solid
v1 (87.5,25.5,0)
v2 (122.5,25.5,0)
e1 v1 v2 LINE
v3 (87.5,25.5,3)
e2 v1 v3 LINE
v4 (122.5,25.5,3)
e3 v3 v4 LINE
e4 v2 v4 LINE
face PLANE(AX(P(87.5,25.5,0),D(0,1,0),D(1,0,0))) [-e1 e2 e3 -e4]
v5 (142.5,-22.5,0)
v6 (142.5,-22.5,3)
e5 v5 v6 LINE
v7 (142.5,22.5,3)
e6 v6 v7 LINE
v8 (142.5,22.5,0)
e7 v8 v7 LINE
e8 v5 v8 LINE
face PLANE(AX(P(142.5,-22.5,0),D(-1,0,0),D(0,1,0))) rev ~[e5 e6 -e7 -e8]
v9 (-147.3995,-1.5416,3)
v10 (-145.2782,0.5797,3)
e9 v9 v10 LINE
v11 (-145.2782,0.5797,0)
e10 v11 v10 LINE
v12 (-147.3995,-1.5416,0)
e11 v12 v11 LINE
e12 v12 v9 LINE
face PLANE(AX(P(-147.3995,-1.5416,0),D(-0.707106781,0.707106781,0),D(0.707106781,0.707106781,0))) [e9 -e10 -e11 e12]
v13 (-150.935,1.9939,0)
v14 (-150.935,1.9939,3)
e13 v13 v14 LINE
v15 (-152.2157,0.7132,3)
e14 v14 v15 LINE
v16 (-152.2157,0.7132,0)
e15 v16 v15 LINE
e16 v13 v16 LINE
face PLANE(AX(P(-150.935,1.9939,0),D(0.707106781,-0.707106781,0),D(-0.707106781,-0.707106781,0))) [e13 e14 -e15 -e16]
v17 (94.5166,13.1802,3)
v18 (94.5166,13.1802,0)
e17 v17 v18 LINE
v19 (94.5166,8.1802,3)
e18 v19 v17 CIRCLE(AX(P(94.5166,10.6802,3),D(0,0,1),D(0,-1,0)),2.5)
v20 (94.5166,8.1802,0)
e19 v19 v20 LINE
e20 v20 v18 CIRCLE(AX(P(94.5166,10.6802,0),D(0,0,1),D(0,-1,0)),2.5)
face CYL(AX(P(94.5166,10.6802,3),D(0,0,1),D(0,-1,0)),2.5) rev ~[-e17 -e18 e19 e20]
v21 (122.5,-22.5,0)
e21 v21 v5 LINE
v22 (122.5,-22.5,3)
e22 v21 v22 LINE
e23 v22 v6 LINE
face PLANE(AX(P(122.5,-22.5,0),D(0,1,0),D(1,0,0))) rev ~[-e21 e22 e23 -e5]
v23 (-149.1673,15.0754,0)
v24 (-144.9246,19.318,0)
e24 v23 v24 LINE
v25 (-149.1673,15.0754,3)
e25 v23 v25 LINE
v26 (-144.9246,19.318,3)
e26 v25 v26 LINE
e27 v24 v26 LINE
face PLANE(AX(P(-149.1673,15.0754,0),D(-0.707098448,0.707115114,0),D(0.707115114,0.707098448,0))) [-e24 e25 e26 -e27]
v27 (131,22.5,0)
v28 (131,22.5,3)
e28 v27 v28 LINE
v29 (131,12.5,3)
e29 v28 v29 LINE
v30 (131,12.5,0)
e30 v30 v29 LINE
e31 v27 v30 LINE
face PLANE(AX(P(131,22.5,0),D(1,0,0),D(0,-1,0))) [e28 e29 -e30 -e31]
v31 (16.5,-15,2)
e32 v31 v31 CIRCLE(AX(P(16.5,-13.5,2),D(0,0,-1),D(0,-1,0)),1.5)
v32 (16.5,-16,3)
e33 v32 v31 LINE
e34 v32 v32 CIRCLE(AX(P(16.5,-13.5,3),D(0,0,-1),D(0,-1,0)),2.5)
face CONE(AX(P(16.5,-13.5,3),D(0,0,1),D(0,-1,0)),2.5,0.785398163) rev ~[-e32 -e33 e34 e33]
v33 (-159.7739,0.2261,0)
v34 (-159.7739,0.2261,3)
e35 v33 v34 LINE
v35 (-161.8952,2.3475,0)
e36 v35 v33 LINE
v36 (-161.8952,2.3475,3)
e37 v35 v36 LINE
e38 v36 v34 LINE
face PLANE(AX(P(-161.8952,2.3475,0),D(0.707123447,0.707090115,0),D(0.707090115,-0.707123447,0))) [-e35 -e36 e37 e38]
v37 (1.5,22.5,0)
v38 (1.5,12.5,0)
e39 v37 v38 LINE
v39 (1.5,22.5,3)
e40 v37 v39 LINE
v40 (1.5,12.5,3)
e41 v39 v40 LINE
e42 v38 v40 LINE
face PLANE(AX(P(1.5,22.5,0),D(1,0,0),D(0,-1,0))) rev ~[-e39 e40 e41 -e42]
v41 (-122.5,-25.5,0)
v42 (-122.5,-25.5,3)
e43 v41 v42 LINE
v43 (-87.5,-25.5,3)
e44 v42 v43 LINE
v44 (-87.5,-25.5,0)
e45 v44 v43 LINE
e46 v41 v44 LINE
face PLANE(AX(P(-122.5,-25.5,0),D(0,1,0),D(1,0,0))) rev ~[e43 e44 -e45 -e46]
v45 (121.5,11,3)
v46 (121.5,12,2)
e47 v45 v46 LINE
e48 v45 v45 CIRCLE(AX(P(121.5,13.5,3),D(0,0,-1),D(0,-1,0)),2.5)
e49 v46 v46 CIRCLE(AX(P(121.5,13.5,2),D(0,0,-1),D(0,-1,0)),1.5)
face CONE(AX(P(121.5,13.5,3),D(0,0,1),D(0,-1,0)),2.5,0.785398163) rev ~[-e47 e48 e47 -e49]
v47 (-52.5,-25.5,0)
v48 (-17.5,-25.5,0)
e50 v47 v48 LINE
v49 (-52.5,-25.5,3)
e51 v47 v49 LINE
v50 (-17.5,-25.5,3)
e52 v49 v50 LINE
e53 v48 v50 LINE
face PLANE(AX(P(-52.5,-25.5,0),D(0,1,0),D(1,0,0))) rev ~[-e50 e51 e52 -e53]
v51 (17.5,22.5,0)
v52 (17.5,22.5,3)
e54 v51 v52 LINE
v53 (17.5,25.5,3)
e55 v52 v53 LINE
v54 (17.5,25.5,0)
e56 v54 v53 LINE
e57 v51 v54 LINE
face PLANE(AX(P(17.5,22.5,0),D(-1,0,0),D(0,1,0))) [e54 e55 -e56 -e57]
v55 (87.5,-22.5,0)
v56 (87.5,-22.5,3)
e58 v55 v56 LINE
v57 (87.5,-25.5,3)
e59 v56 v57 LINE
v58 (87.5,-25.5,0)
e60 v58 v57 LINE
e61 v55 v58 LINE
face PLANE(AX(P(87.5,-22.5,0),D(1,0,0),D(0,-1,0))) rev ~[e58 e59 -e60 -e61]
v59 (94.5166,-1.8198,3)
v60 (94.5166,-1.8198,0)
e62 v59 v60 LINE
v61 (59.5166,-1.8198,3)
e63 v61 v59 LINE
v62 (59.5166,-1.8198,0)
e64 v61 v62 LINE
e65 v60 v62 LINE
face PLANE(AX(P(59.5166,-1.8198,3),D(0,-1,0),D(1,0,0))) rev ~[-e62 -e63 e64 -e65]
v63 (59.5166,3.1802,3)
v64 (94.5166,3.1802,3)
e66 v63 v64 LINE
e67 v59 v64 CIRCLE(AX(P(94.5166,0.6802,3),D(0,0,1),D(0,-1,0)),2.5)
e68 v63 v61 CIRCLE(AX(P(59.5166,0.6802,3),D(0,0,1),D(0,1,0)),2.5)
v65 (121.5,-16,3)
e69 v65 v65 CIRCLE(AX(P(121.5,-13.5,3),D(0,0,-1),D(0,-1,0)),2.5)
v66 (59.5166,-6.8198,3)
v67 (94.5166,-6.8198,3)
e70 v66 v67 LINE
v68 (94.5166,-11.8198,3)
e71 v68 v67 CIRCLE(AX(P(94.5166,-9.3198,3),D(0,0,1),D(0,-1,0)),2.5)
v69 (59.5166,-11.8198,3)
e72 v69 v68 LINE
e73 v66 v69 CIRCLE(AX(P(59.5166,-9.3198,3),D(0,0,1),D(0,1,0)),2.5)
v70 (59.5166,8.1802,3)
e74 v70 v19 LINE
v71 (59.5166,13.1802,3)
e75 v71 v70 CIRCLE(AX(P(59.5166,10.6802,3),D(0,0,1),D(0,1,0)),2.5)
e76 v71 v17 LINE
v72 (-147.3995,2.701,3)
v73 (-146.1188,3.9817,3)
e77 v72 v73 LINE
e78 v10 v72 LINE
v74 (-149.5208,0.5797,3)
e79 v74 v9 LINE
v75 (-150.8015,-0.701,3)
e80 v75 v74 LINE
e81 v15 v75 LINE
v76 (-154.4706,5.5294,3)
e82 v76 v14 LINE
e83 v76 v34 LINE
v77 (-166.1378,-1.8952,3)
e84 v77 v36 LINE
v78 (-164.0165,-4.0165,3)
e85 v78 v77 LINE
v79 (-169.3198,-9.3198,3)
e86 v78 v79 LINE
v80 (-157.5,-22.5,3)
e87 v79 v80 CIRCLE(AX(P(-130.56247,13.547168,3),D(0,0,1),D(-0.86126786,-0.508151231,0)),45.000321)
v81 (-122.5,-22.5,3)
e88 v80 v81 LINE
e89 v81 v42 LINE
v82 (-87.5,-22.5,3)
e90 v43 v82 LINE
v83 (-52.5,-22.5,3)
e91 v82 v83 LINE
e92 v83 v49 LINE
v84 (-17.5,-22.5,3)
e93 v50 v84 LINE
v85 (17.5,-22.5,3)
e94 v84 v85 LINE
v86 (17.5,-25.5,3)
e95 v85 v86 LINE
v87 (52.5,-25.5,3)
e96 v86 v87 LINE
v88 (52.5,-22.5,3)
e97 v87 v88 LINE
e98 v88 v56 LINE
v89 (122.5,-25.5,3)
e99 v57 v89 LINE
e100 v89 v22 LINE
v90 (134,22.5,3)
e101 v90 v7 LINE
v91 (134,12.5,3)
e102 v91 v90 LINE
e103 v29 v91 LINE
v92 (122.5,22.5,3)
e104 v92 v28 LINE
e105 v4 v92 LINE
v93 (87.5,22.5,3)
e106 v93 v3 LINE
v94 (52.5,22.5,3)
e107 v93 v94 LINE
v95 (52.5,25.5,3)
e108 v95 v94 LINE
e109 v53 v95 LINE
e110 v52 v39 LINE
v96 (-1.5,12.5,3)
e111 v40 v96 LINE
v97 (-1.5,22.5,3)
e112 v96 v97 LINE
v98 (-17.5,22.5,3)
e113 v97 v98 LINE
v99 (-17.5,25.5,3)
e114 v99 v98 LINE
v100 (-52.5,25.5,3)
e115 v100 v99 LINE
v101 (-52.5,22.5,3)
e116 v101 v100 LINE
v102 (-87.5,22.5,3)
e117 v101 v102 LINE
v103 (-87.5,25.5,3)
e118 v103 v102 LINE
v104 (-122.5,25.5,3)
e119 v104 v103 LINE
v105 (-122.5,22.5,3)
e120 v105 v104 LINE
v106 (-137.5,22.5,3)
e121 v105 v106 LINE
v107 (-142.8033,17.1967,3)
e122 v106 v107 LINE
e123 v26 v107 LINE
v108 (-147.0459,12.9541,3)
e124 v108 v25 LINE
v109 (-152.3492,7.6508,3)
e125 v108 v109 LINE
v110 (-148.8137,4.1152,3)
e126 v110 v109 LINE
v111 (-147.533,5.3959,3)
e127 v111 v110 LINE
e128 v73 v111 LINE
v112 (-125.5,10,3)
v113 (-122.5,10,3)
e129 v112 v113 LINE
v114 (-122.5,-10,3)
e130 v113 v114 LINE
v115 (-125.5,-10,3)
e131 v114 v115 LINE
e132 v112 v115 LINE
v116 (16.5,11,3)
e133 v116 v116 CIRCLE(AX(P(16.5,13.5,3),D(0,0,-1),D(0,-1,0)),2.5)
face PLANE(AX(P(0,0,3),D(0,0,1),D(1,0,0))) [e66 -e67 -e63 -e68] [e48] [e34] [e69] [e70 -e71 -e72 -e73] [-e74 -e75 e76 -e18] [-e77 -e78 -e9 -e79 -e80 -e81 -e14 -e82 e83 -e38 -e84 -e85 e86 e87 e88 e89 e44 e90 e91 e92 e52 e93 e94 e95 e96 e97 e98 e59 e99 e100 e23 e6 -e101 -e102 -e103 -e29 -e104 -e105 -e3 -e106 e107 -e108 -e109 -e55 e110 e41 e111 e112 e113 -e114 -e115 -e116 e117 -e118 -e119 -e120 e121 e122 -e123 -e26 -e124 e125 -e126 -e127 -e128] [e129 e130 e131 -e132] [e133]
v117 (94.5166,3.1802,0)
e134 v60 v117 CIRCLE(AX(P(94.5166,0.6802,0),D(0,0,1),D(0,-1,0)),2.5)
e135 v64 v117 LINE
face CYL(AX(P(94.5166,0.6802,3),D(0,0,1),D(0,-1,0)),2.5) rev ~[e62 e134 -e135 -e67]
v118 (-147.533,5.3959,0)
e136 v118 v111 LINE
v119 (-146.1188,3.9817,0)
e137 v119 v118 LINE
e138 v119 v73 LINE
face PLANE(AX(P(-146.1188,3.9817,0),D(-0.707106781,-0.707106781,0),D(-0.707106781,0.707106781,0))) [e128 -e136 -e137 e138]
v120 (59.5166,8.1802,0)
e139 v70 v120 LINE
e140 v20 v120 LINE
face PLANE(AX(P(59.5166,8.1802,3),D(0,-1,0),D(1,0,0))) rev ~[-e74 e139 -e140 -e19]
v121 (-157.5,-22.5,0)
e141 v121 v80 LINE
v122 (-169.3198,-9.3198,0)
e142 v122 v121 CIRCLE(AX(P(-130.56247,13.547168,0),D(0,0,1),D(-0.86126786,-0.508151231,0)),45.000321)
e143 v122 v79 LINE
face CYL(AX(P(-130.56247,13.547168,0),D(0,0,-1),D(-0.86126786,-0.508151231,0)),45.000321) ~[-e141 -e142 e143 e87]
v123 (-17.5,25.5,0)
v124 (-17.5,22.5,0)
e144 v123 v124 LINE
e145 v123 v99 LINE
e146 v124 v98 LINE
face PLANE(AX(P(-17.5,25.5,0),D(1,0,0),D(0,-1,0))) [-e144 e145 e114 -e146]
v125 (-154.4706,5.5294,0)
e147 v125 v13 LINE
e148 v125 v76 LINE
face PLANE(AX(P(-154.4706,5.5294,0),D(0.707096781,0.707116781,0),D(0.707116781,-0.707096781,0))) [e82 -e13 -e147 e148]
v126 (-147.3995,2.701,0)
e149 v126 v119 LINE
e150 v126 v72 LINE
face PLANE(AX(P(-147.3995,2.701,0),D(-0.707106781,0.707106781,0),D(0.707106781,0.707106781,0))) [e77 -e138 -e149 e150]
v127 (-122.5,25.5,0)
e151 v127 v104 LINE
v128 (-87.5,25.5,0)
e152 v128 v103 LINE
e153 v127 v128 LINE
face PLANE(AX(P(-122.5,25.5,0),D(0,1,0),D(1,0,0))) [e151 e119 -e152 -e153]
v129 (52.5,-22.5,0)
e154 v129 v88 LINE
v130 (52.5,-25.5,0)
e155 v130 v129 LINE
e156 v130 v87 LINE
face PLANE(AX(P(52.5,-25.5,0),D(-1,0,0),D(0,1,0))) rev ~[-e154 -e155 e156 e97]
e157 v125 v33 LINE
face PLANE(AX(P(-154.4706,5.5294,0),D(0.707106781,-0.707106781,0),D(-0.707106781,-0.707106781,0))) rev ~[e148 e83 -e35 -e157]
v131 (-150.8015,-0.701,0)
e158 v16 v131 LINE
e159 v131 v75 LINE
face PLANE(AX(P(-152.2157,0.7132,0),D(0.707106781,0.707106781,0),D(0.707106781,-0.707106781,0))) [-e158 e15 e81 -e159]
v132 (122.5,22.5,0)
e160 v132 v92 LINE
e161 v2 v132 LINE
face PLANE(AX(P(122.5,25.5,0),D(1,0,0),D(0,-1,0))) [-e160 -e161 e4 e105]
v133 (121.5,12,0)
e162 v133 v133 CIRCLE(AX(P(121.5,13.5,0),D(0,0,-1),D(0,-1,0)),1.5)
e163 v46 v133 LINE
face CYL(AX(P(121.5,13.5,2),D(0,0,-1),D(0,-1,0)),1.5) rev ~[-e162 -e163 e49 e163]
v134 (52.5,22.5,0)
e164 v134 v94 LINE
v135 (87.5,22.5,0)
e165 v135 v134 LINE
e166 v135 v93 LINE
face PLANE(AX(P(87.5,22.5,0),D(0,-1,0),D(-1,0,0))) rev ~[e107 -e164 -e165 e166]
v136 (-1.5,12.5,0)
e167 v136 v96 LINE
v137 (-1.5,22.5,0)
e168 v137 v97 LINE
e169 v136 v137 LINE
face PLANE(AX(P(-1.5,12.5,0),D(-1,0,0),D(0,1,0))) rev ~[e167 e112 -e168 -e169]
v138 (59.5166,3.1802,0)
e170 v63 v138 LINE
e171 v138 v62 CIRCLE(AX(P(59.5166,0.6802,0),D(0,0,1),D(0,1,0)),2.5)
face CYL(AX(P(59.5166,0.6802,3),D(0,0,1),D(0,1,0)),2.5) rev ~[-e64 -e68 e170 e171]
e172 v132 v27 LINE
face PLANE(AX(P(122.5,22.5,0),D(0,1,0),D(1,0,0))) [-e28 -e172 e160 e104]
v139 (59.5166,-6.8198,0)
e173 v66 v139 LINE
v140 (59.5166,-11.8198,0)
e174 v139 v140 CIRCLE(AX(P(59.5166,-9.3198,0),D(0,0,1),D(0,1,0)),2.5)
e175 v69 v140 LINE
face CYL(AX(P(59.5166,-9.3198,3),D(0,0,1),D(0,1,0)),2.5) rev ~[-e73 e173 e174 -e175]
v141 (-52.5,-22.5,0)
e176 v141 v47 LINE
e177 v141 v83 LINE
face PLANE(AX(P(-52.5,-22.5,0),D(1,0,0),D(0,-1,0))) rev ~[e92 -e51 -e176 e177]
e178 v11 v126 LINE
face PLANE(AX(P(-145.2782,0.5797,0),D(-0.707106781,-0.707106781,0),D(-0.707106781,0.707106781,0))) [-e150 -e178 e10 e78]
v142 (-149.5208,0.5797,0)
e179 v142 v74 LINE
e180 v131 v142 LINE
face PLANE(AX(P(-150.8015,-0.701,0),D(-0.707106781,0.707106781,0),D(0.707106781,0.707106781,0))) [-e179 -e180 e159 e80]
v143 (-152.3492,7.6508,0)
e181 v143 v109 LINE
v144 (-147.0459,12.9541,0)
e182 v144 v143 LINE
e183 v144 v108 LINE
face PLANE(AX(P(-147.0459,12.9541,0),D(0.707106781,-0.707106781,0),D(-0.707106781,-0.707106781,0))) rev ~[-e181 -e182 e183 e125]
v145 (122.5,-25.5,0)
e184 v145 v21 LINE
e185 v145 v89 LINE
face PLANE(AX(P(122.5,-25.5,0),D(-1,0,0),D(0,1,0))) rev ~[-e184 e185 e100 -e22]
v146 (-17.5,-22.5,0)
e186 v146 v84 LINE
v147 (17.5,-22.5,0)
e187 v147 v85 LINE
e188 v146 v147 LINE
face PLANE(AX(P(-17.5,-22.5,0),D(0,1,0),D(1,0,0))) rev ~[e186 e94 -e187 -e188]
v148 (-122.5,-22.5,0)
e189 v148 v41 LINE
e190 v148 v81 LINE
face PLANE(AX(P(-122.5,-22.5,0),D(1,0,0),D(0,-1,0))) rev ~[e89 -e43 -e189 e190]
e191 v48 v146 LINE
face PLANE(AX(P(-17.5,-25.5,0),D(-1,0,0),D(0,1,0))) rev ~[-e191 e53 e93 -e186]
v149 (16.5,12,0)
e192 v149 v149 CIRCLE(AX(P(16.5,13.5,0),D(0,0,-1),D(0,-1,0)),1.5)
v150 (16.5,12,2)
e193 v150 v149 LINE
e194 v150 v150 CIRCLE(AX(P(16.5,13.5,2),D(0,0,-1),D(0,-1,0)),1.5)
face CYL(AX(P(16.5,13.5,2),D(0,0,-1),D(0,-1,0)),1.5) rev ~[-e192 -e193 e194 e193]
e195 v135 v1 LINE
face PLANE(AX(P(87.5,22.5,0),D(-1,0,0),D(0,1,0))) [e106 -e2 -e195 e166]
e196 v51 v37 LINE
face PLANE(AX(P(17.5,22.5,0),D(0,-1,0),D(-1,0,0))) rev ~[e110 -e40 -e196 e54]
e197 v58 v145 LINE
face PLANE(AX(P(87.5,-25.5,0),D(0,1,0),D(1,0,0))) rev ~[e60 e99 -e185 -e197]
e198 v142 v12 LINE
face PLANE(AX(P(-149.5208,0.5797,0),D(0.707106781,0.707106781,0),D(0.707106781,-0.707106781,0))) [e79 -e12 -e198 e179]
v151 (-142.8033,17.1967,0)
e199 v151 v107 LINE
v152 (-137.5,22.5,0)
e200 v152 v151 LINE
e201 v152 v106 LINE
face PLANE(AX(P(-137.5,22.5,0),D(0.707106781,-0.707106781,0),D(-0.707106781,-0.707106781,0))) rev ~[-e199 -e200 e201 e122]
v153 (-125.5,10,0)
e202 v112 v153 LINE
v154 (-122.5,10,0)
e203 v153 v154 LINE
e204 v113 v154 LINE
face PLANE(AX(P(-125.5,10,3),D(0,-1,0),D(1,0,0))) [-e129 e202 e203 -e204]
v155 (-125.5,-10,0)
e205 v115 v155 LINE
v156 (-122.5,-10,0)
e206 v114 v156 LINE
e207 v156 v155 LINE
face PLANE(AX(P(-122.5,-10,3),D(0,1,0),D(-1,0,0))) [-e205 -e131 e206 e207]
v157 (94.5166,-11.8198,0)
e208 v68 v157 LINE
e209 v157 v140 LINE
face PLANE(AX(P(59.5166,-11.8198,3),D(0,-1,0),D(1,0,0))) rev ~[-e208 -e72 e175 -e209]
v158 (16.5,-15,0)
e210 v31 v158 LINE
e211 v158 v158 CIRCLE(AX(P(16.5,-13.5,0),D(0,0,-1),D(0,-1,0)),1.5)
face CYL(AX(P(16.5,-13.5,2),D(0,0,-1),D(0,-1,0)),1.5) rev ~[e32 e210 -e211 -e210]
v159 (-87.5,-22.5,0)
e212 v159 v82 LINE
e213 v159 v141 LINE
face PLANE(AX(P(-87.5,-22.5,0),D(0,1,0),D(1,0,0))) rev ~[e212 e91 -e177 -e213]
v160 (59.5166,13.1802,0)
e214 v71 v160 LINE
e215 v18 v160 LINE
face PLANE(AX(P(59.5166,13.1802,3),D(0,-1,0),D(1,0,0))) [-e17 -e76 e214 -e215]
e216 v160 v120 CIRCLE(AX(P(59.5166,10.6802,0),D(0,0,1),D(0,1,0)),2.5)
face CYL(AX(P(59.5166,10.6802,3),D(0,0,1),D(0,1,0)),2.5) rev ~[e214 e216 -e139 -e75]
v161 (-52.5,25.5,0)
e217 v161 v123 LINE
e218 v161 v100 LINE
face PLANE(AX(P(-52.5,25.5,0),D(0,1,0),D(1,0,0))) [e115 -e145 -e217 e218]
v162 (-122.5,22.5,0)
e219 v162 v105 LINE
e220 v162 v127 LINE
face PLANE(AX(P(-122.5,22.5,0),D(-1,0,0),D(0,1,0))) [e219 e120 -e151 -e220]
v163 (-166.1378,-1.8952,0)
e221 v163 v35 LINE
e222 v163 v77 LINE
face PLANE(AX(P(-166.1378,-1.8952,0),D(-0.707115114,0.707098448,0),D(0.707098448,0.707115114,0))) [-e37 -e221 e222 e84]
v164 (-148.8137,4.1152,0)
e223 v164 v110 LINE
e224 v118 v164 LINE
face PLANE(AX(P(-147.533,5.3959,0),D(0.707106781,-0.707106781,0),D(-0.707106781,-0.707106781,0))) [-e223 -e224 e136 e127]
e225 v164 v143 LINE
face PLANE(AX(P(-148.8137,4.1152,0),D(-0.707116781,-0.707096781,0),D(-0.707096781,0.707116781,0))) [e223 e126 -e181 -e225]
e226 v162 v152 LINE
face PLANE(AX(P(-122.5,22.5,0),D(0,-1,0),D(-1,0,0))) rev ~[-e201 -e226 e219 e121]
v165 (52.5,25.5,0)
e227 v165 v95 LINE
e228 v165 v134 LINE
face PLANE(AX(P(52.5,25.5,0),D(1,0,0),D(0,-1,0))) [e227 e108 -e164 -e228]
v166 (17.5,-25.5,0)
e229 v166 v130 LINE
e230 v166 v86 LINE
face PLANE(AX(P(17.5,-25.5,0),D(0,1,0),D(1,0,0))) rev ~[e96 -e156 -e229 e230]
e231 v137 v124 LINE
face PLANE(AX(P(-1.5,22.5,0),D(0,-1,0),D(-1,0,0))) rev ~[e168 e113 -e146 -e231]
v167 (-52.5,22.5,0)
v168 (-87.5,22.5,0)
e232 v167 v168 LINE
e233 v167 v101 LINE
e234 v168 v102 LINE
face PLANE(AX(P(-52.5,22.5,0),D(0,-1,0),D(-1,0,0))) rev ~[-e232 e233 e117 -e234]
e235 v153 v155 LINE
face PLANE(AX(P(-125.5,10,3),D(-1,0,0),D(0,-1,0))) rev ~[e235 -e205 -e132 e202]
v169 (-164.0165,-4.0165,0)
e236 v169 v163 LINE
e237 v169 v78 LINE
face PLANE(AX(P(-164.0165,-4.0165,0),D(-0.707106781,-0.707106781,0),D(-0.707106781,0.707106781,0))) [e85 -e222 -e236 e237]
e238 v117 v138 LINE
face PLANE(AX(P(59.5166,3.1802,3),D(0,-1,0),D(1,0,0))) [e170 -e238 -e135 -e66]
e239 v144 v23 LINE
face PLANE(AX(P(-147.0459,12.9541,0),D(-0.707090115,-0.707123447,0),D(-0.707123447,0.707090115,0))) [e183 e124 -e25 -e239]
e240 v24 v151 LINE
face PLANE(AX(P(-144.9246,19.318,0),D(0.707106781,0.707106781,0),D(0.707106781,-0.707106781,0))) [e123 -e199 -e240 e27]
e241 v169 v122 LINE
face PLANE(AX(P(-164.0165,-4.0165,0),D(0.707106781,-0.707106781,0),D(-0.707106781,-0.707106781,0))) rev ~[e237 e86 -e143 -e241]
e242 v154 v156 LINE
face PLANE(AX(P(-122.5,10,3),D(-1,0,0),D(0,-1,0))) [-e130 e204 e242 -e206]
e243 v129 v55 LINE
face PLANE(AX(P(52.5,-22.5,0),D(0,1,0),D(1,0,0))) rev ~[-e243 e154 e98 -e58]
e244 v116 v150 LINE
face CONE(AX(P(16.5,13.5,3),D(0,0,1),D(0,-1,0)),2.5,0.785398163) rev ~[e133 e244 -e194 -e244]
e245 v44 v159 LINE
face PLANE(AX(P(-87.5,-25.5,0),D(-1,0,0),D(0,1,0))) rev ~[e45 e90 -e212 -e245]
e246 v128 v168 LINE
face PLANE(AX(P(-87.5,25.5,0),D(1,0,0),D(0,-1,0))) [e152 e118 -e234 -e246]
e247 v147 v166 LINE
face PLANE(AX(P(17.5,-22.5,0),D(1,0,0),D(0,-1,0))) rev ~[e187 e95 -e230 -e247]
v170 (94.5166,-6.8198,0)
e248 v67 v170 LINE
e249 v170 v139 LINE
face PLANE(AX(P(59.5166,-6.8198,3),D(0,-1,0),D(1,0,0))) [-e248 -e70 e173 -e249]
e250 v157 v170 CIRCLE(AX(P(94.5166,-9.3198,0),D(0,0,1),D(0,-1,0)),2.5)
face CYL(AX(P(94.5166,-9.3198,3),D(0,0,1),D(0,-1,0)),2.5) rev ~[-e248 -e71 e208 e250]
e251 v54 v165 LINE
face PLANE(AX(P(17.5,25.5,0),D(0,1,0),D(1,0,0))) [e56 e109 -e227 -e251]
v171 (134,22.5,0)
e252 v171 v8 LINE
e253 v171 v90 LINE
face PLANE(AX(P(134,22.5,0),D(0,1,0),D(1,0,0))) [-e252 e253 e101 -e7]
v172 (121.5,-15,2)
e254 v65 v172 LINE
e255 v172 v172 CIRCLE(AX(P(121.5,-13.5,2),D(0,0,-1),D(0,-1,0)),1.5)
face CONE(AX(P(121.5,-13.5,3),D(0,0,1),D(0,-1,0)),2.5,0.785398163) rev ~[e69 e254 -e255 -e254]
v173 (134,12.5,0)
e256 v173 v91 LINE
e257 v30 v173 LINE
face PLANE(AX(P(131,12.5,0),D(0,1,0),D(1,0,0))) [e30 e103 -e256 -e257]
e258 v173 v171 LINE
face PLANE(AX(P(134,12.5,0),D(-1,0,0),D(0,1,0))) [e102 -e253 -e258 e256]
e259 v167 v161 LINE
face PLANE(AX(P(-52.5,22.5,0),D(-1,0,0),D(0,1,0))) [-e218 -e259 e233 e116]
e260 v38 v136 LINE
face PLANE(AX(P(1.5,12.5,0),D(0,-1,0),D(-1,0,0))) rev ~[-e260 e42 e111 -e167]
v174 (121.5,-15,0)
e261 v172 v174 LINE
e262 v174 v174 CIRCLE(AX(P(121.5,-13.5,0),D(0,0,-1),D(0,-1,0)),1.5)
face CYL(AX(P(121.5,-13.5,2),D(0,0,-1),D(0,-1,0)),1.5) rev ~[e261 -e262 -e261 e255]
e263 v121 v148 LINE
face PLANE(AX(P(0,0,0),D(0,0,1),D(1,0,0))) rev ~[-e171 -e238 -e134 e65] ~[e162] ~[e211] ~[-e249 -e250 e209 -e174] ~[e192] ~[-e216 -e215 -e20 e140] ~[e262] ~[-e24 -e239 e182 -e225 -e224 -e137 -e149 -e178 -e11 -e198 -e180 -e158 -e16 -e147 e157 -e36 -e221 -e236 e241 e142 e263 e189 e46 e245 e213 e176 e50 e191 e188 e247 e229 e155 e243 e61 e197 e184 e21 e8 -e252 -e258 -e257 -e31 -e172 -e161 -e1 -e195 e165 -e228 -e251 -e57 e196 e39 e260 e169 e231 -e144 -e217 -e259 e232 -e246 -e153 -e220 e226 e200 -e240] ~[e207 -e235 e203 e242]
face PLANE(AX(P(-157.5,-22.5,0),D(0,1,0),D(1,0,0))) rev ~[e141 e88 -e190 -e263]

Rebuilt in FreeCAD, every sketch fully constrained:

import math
import FreeCAD as App
import Part
import Sketcher
from FreeCAD import Vector

doc = App.newDocument("Part")
params = doc.addObject("Spreadsheet::Sheet", "Params")
for row, (alias, value) in enumerate([
    ("sketch1_radius", "45 mm"),
    ("sketch1_width", "20 mm"),
    ("sketch1_width2", "3 mm"),
    ("sketch1_width3", "35 mm"),
    ("sketch1_width4", "15 mm"),
    ("pad1_length", "3 mm"),
    ("sketch2_height", "20 mm"),
    ("sketch2_width", "3 mm"),
    ("pocket1_length", "10 mm"),
    ("sketch3_radius", "2.5 mm"),
    ("sketch3_width", "35 mm"),
    ("linearpattern_pitch", "10 mm"),
    ("sketch4_diameter", "3 mm"),
    ("hole_diameter", "3 mm"),
    ("hole_csink_diameter", "5 mm"),
], start=1):
    params.set(f"A{row}", alias)
    params.set(f"B{row}", "=" + value)
    params.setAlias(f"B{row}", alias)

body = doc.addObject("PartDesign::Body", "Body")

# Sketch on XY plane
sketch1 = body.newObject("Sketcher::SketchObject", "Sketch")
sketch1.AttachmentSupport = (doc.getObject("XY_Plane"), [""])
sketch1.MapMode = "FlatFace"
sketch1.addGeometry([
    Part.LineSegment(Vector(122.5, -22.5, 0), Vector(142.5, -22.5, 0)),  # 0
    Part.LineSegment(Vector(142.5, -22.5, 0), Vector(142.5, 22.5, 0)),  # 1
    Part.LineSegment(Vector(142.5, 22.5, 0), Vector(134, 22.5, 0)),  # 2
    Part.LineSegment(Vector(134, 22.5, 0), Vector(134, 12.5, 0)),  # 3
    Part.LineSegment(Vector(134, 12.5, 0), Vector(131, 12.5, 0)),  # 4
    Part.LineSegment(Vector(131, 12.5, 0), Vector(131, 22.5, 0)),  # 5
    Part.LineSegment(Vector(131, 22.5, 0), Vector(122.5, 22.5, 0)),  # 6
    Part.LineSegment(Vector(122.5, 22.5, 0), Vector(122.5, 25.5, 0)),  # 7
    Part.LineSegment(Vector(122.5, 25.5, 0), Vector(87.5, 25.5, 0)),  # 8
    Part.LineSegment(Vector(87.5, 25.5, 0), Vector(87.5, 22.5, 0)),  # 9
    Part.LineSegment(Vector(87.5, 22.5, 0), Vector(52.5, 22.5, 0)),  # 10
    Part.LineSegment(Vector(52.5, 22.5, 0), Vector(52.5, 25.5, 0)),  # 11
    Part.LineSegment(Vector(52.5, 25.5, 0), Vector(17.5, 25.5, 0)),  # 12
    Part.LineSegment(Vector(17.5, 25.5, 0), Vector(17.5, 22.5, 0)),  # 13
    Part.LineSegment(Vector(17.5, 22.5, 0), Vector(1.5, 22.5, 0)),  # 14
    Part.LineSegment(Vector(1.5, 22.5, 0), Vector(1.5, 12.5, 0)),  # 15
    Part.LineSegment(Vector(1.5, 12.5, 0), Vector(-1.5, 12.5, 0)),  # 16
    Part.LineSegment(Vector(-1.5, 12.5, 0), Vector(-1.5, 22.5, 0)),  # 17
    Part.LineSegment(Vector(-1.5, 22.5, 0), Vector(-17.5, 22.5, 0)),  # 18
    Part.LineSegment(Vector(-17.5, 22.5, 0), Vector(-17.5, 25.5, 0)),  # 19
    Part.LineSegment(Vector(-17.5, 25.5, 0), Vector(-52.5, 25.5, 0)),  # 20
    Part.LineSegment(Vector(-52.5, 25.5, 0), Vector(-52.5, 22.5, 0)),  # 21
    Part.LineSegment(Vector(-52.5, 22.5, 0), Vector(-87.5, 22.5, 0)),  # 22
    Part.LineSegment(Vector(-87.5, 22.5, 0), Vector(-87.5, 25.5, 0)),  # 23
    Part.LineSegment(Vector(-87.5, 25.5, 0), Vector(-122.5, 25.5, 0)),  # 24
    Part.LineSegment(Vector(-122.5, 25.5, 0), Vector(-122.5, 22.5, 0)),  # 25
    Part.LineSegment(Vector(-122.5, 22.5, 0), Vector(-137.5, 22.5, 0)),  # 26
    Part.LineSegment(Vector(-137.5, 22.5, 0), Vector(-142.8033, 17.1967, 0)),  # 27
    Part.LineSegment(Vector(-142.8033, 17.1967, 0), Vector(-144.9246, 19.318, 0)),  # 28
    Part.LineSegment(Vector(-144.9246, 19.318, 0), Vector(-149.1673, 15.0754, 0)),  # 29
    Part.LineSegment(Vector(-149.1673, 15.0754, 0), Vector(-147.0459, 12.9541, 0)),  # 30
    Part.LineSegment(Vector(-147.0459, 12.9541, 0), Vector(-152.3492, 7.6508, 0)),  # 31
    Part.LineSegment(Vector(-152.3492, 7.6508, 0), Vector(-148.8137, 4.1152, 0)),  # 32
    Part.LineSegment(Vector(-148.8137, 4.1152, 0), Vector(-147.533, 5.3959, 0)),  # 33
    Part.LineSegment(Vector(-147.533, 5.3959, 0), Vector(-146.1188, 3.9817, 0)),  # 34
    Part.LineSegment(Vector(-146.1188, 3.9817, 0), Vector(-147.3995, 2.701, 0)),  # 35
    Part.LineSegment(Vector(-147.3995, 2.701, 0), Vector(-145.2782, 0.5797, 0)),  # 36
    Part.LineSegment(Vector(-145.2782, 0.5797, 0), Vector(-147.3995, -1.5416, 0)),  # 37
    Part.LineSegment(Vector(-147.3995, -1.5416, 0), Vector(-149.5208, 0.5797, 0)),  # 38
    Part.LineSegment(Vector(-149.5208, 0.5797, 0), Vector(-150.8015, -0.701, 0)),  # 39
    Part.LineSegment(Vector(-150.8015, -0.701, 0), Vector(-152.2157, 0.7132, 0)),  # 40
    Part.LineSegment(Vector(-152.2157, 0.7132, 0), Vector(-150.935, 1.9939, 0)),  # 41
    Part.LineSegment(Vector(-150.935, 1.9939, 0), Vector(-154.4706, 5.5294, 0)),  # 42
    Part.LineSegment(Vector(-154.4706, 5.5294, 0), Vector(-159.7739, 0.2261, 0)),  # 43
    Part.LineSegment(Vector(-159.7739, 0.2261, 0), Vector(-161.8952, 2.3475, 0)),  # 44
    Part.LineSegment(Vector(-161.8952, 2.3475, 0), Vector(-166.1378, -1.8952, 0)),  # 45
    Part.LineSegment(Vector(-166.1378, -1.8952, 0), Vector(-164.0165, -4.0165, 0)),  # 46
    Part.LineSegment(Vector(-164.0165, -4.0165, 0), Vector(-169.3198, -9.3198, 0)),  # 47
    Part.ArcOfCircle(Part.Circle(Vector(-130.5627, 13.547, 0), Vector(0, 0, 1), 45.000037), math.radians(-149.459273), math.radians(-126.770127)),  # 48
    Part.LineSegment(Vector(-157.5, -22.5, 0), Vector(-122.5, -22.5, 0)),  # 49
    Part.LineSegment(Vector(-122.5, -22.5, 0), Vector(-122.5, -25.5, 0)),  # 50
    Part.LineSegment(Vector(-122.5, -25.5, 0), Vector(-87.5, -25.5, 0)),  # 51
    Part.LineSegment(Vector(-87.5, -25.5, 0), Vector(-87.5, -22.5, 0)),  # 52
    Part.LineSegment(Vector(-87.5, -22.5, 0), Vector(-52.5, -22.5, 0)),  # 53
    Part.LineSegment(Vector(-52.5, -22.5, 0), Vector(-52.5, -25.5, 0)),  # 54
    Part.LineSegment(Vector(-52.5, -25.5, 0), Vector(-17.5, -25.5, 0)),  # 55
    Part.LineSegment(Vector(-17.5, -25.5, 0), Vector(-17.5, -22.5, 0)),  # 56
    Part.LineSegment(Vector(-17.5, -22.5, 0), Vector(17.5, -22.5, 0)),  # 57
    Part.LineSegment(Vector(17.5, -22.5, 0), Vector(17.5, -25.5, 0)),  # 58
    Part.LineSegment(Vector(17.5, -25.5, 0), Vector(52.5, -25.5, 0)),  # 59
    Part.LineSegment(Vector(52.5, -25.5, 0), Vector(52.5, -22.5, 0)),  # 60
    Part.LineSegment(Vector(52.5, -22.5, 0), Vector(87.5, -22.5, 0)),  # 61
    Part.LineSegment(Vector(87.5, -22.5, 0), Vector(87.5, -25.5, 0)),  # 62
    Part.LineSegment(Vector(87.5, -25.5, 0), Vector(122.5, -25.5, 0)),  # 63
    Part.LineSegment(Vector(122.5, -25.5, 0), Vector(122.5, -22.5, 0)),  # 64
], False)
sketch1.addConstraint([
    Sketcher.Constraint("Coincident", 0, 2, 1, 1),
    Sketcher.Constraint("Coincident", 1, 2, 2, 1),
    Sketcher.Constraint("Coincident", 2, 2, 3, 1),
    Sketcher.Constraint("Coincident", 3, 2, 4, 1),
    Sketcher.Constraint("Coincident", 4, 2, 5, 1),
    Sketcher.Constraint("Coincident", 5, 2, 6, 1),
    Sketcher.Constraint("Coincident", 6, 2, 7, 1),
    Sketcher.Constraint("Coincident", 7, 2, 8, 1),
    Sketcher.Constraint("Coincident", 8, 2, 9, 1),
    Sketcher.Constraint("Coincident", 9, 2, 10, 1),
    Sketcher.Constraint("Coincident", 10, 2, 11, 1),
    Sketcher.Constraint("Coincident", 11, 2, 12, 1),
    Sketcher.Constraint("Coincident", 12, 2, 13, 1),
    Sketcher.Constraint("Coincident", 13, 2, 14, 1),
    Sketcher.Constraint("Coincident", 14, 2, 15, 1),
    Sketcher.Constraint("Coincident", 15, 2, 16, 1),
    Sketcher.Constraint("Coincident", 16, 2, 17, 1),
    Sketcher.Constraint("Coincident", 17, 2, 18, 1),
    Sketcher.Constraint("Coincident", 18, 2, 19, 1),
    Sketcher.Constraint("Coincident", 19, 2, 20, 1),
    Sketcher.Constraint("Coincident", 20, 2, 21, 1),
    Sketcher.Constraint("Coincident", 21, 2, 22, 1),
    Sketcher.Constraint("Coincident", 22, 2, 23, 1),
    Sketcher.Constraint("Coincident", 23, 2, 24, 1),
    Sketcher.Constraint("Coincident", 24, 2, 25, 1),
    Sketcher.Constraint("Coincident", 25, 2, 26, 1),
    Sketcher.Constraint("Coincident", 26, 2, 27, 1),
    Sketcher.Constraint("Coincident", 27, 2, 28, 1),
    Sketcher.Constraint("Coincident", 28, 2, 29, 1),
    Sketcher.Constraint("Coincident", 29, 2, 30, 1),
    Sketcher.Constraint("Coincident", 30, 2, 31, 1),
    Sketcher.Constraint("Coincident", 31, 2, 32, 1),
    Sketcher.Constraint("Coincident", 32, 2, 33, 1),
    Sketcher.Constraint("Coincident", 33, 2, 34, 1),
    Sketcher.Constraint("Coincident", 34, 2, 35, 1),
    Sketcher.Constraint("Coincident", 35, 2, 36, 1),
    Sketcher.Constraint("Coincident", 36, 2, 37, 1),
    Sketcher.Constraint("Coincident", 37, 2, 38, 1),
    Sketcher.Constraint("Coincident", 38, 2, 39, 1),
    Sketcher.Constraint("Coincident", 39, 2, 40, 1),
    Sketcher.Constraint("Coincident", 40, 2, 41, 1),
    Sketcher.Constraint("Coincident", 41, 2, 42, 1),
    Sketcher.Constraint("Coincident", 42, 2, 43, 1),
    Sketcher.Constraint("Coincident", 43, 2, 44, 1),
    Sketcher.Constraint("Coincident", 44, 2, 45, 1),
    Sketcher.Constraint("Coincident", 45, 2, 46, 1),
    Sketcher.Constraint("Coincident", 46, 2, 47, 1),
    Sketcher.Constraint("Coincident", 47, 2, 48, 1),
    Sketcher.Constraint("Coincident", 48, 2, 49, 1),
    Sketcher.Constraint("Coincident", 49, 2, 50, 1),
    Sketcher.Constraint("Coincident", 50, 2, 51, 1),
    Sketcher.Constraint("Coincident", 51, 2, 52, 1),
    Sketcher.Constraint("Coincident", 52, 2, 53, 1),
    Sketcher.Constraint("Coincident", 53, 2, 54, 1),
    Sketcher.Constraint("Coincident", 54, 2, 55, 1),
    Sketcher.Constraint("Coincident", 55, 2, 56, 1),
    Sketcher.Constraint("Coincident", 56, 2, 57, 1),
    Sketcher.Constraint("Coincident", 57, 2, 58, 1),
    Sketcher.Constraint("Coincident", 58, 2, 59, 1),
    Sketcher.Constraint("Coincident", 59, 2, 60, 1),
    Sketcher.Constraint("Coincident", 60, 2, 61, 1),
    Sketcher.Constraint("Coincident", 61, 2, 62, 1),
    Sketcher.Constraint("Coincident", 62, 2, 63, 1),
    Sketcher.Constraint("Coincident", 63, 2, 64, 1),
    Sketcher.Constraint("Coincident", 64, 2, 0, 1),
    Sketcher.Constraint("Horizontal", 0),
    Sketcher.Constraint("Vertical", 1),
    Sketcher.Constraint("Horizontal", 2),
    Sketcher.Constraint("Vertical", 3),
    Sketcher.Constraint("Horizontal", 4),
    Sketcher.Constraint("Vertical", 5),
    Sketcher.Constraint("Horizontal", 6),
    Sketcher.Constraint("Vertical", 7),
    Sketcher.Constraint("Horizontal", 8),
    Sketcher.Constraint("Vertical", 9),
    Sketcher.Constraint("Horizontal", 10),
    Sketcher.Constraint("Vertical", 11),
    Sketcher.Constraint("Horizontal", 12),
    Sketcher.Constraint("Vertical", 13),
    Sketcher.Constraint("Horizontal", 14),
    Sketcher.Constraint("Vertical", 15),
    Sketcher.Constraint("Horizontal", 16),
    Sketcher.Constraint("Vertical", 17),
    Sketcher.Constraint("Horizontal", 18),
    Sketcher.Constraint("Vertical", 19),
    Sketcher.Constraint("Horizontal", 20),
    Sketcher.Constraint("Vertical", 21),
    Sketcher.Constraint("Horizontal", 22),
    Sketcher.Constraint("Vertical", 23),
    Sketcher.Constraint("Horizontal", 24),
    Sketcher.Constraint("Vertical", 25),
    Sketcher.Constraint("Horizontal", 26),
    Sketcher.Constraint("Horizontal", 49),
    Sketcher.Constraint("Vertical", 50),
    Sketcher.Constraint("Horizontal", 51),
    Sketcher.Constraint("Vertical", 52),
    Sketcher.Constraint("Horizontal", 53),
    Sketcher.Constraint("Vertical", 54),
    Sketcher.Constraint("Horizontal", 55),
    Sketcher.Constraint("Vertical", 56),
    Sketcher.Constraint("Horizontal", 57),
    Sketcher.Constraint("Vertical", 58),
    Sketcher.Constraint("Horizontal", 59),
    Sketcher.Constraint("Vertical", 60),
    Sketcher.Constraint("Horizontal", 61),
    Sketcher.Constraint("Vertical", 62),
    Sketcher.Constraint("Horizontal", 63),
    Sketcher.Constraint("Vertical", 64),
    Sketcher.Constraint("Symmetric", 6, 2, 49, 2, -1, 1),
    Sketcher.Constraint("Symmetric", 8, 2, 51, 2, -1, 1),
    Sketcher.Constraint("Symmetric", 10, 2, 53, 2, -1, 1),
    Sketcher.Constraint("Symmetric", 12, 2, 55, 2, -1, 1),
    Sketcher.Constraint("Symmetric", 18, 2, 57, 2, -1, 1),
    Sketcher.Constraint("Symmetric", 20, 2, 59, 2, -1, 1),
    Sketcher.Constraint("Symmetric", 22, 2, 61, 2, -1, 1),
    Sketcher.Constraint("Symmetric", 24, 2, 63, 2, -1, 1),
    Sketcher.Constraint("Symmetric", 14, 2, 17, 2, -2),
    Sketcher.Constraint("Symmetric", 12, 2, 19, 2, -2),
    Sketcher.Constraint("Symmetric", 10, 2, 21, 2, -2),
    Sketcher.Constraint("Symmetric", 8, 2, 23, 2, -2),
    Sketcher.Constraint("Symmetric", 6, 2, 25, 2, -2),
    Sketcher.Constraint("Perpendicular", 27, 28),
    Sketcher.Constraint("Perpendicular", 28, 29),
    Sketcher.Constraint("Perpendicular", 29, 30),
    Sketcher.Constraint("Perpendicular", 30, 31),
    Sketcher.Constraint("Perpendicular", 31, 32),
    Sketcher.Constraint("Perpendicular", 32, 33),
    Sketcher.Constraint("Perpendicular", 33, 34),
    Sketcher.Constraint("Perpendicular", 34, 35),
    Sketcher.Constraint("Perpendicular", 35, 36),
    Sketcher.Constraint("Perpendicular", 36, 37),
    Sketcher.Constraint("Perpendicular", 37, 38),
    Sketcher.Constraint("Perpendicular", 38, 39),
    Sketcher.Constraint("Perpendicular", 39, 40),
    Sketcher.Constraint("Perpendicular", 40, 41),
    Sketcher.Constraint("Perpendicular", 41, 42),
    Sketcher.Constraint("Perpendicular", 42, 43),
    Sketcher.Constraint("Perpendicular", 43, 44),
    Sketcher.Constraint("Perpendicular", 44, 45),
    Sketcher.Constraint("Perpendicular", 45, 46),
    Sketcher.Constraint("Perpendicular", 46, 47),
    Sketcher.Constraint("Horizontal", 2, 2, 5, 2),
    Sketcher.Constraint("Horizontal", 6, 2, 9, 2),
    Sketcher.Constraint("Horizontal", 8, 2, 11, 2),
    Sketcher.Constraint("Horizontal", 10, 2, 13, 2),
    Sketcher.Constraint("Horizontal", 4, 2, 15, 2),
    Sketcher.Constraint("Horizontal", 36, 2, 38, 2),
    Sketcher.Constraint("Horizontal", 0, 2, 48, 2),
    Sketcher.Constraint("Vertical", 35, 2, 37, 2),
    Sketcher.Constraint("Equal", 2, 6),
    Sketcher.Constraint("Equal", 8, 10),
    Sketcher.Constraint("Equal", 10, 12),
    Sketcher.Constraint("Equal", 4, 16),
    Sketcher.Constraint("Equal", 24, 49),
    Sketcher.Constraint("Equal", 55, 57),
    Sketcher.Constraint("Equal", 16, 7),
    Sketcher.Constraint("Equal", 28, 30),
    Sketcher.Constraint("Equal", 27, 31),
    Sketcher.Constraint("Equal", 33, 35),
    Sketcher.Constraint("Equal", 30, 36),
    Sketcher.Constraint("Equal", 36, 37),
    Sketcher.Constraint("Equal", 35, 39),
    Sketcher.Constraint("Equal", 34, 40),
    Sketcher.Constraint("Equal", 39, 41),
    Sketcher.Constraint("Equal", 32, 42),
    Sketcher.Constraint("Equal", 31, 43),
    Sketcher.Constraint("Equal", 38, 44),
    Sketcher.Constraint("Equal", 29, 45),
    Sketcher.Constraint("Equal", 44, 46),
    Sketcher.Constraint("Equal", 43, 47),
    Sketcher.Constraint("Radius", 48, 45.0),
    Sketcher.Constraint("DistanceX", 0, 1, 0, 2, 20.0),
    Sketcher.Constraint("DistanceX", 4, 2, 4, 1, 3.0),
    Sketcher.Constraint("DistanceX", 8, 2, 8, 1, 35.0),
    Sketcher.Constraint("DistanceX", 26, 2, 26, 1, 15.0),
    Sketcher.Constraint("DistanceY", 1, 1, 1, 2, 45.0),
    Sketcher.Constraint("DistanceY", 3, 2, 3, 1, 10.0),
    Sketcher.Constraint("Distance", 28, 3.0),
    Sketcher.Constraint("Distance", 29, 6.0),
    Sketcher.Constraint("Distance", 32, 5.0),
    Sketcher.Constraint("Distance", 34, 2.0),
    Sketcher.Constraint("Distance", 27, 7.5),
    Sketcher.Constraint("DistanceX", 33, 2, -1, 1, 147.533),
])
sketch1.setExpression("Constraints[170]", "Params.sketch1_radius")
sketch1.setExpression("Constraints[171]", "Params.sketch1_width")
sketch1.setExpression("Constraints[172]", "Params.sketch1_width2")
sketch1.setExpression("Constraints[173]", "Params.sketch1_width3")
sketch1.setExpression("Constraints[174]", "Params.sketch1_width4")
pad1 = body.newObject("PartDesign::Pad", "Pad")
pad1.Profile = sketch1
pad1.setExpression("Length", "Params.pad1_length")

# Sketch on XY plane
sketch2 = body.newObject("Sketcher::SketchObject", "Sketch001")
sketch2.AttachmentSupport = (doc.getObject("XY_Plane"), [""])
sketch2.MapMode = "FlatFace"
sketch2.AttachmentOffset = App.Placement(Vector(0, 0, 3), App.Rotation())
sketch2.addGeometry([
    Part.LineSegment(Vector(-122.5, 10, 0), Vector(-125.5, 10, 0)),
    Part.LineSegment(Vector(-125.5, 10, 0), Vector(-125.5, -10, 0)),
    Part.LineSegment(Vector(-125.5, -10, 0), Vector(-122.5, -10, 0)),
    Part.LineSegment(Vector(-122.5, -10, 0), Vector(-122.5, 10, 0)),
], False)
sketch2.addConstraint([
    Sketcher.Constraint("Coincident", 0, 2, 1, 1),
    Sketcher.Constraint("Coincident", 1, 2, 2, 1),
    Sketcher.Constraint("Coincident", 2, 2, 3, 1),
    Sketcher.Constraint("Coincident", 3, 2, 0, 1),
    Sketcher.Constraint("Horizontal", 0),
    Sketcher.Constraint("Vertical", 1),
    Sketcher.Constraint("Horizontal", 2),
    Sketcher.Constraint("Vertical", 3),
    Sketcher.Constraint("DistanceY", 1, 2, 1, 1, 20.0),
    Sketcher.Constraint("DistanceX", 0, 2, 0, 1, 3.0),
    Sketcher.Constraint("DistanceY", -1, 1, 0, 2, 10.0),
    Sketcher.Constraint("DistanceX", 0, 2, -1, 1, 125.5),
])
sketch2.setExpression("Constraints[8]", "Params.sketch2_height")
sketch2.setExpression("Constraints[9]", "Params.sketch2_width")
pocket1 = body.newObject("PartDesign::Pocket", "Pocket")
pocket1.Profile = sketch2
pocket1.setExpression("Length", "Params.pocket1_length")

# Sketch on XY plane
sketch3 = body.newObject("Sketcher::SketchObject", "Sketch002")
sketch3.AttachmentSupport = (doc.getObject("XY_Plane"), [""])
sketch3.MapMode = "FlatFace"
sketch3.AttachmentOffset = App.Placement(Vector(0, 0, 3), App.Rotation())
sketch3.addGeometry([
    Part.LineSegment(Vector(94.5166, -6.8198, 0), Vector(59.5166, -6.8198, 0)),
    Part.ArcOfCircle(Part.Circle(Vector(59.5166, -9.3198, 0), Vector(0, 0, 1), 2.5), math.radians(90), math.radians(270)),
    Part.LineSegment(Vector(59.5166, -11.8198, 0), Vector(94.5166, -11.8198, 0)),
    Part.ArcOfCircle(Part.Circle(Vector(94.5166, -9.3198, 0), Vector(0, 0, 1), 2.5), math.radians(-90), math.radians(90)),
], False)
sketch3.addConstraint([
    Sketcher.Constraint("Tangent", 0, 2, 1, 1),
    Sketcher.Constraint("Tangent", 1, 2, 2, 1),
    Sketcher.Constraint("Tangent", 2, 2, 3, 1),
    Sketcher.Constraint("Tangent", 3, 2, 0, 1),
    Sketcher.Constraint("Horizontal", 0),
    Sketcher.Constraint("Horizontal", 2),
    Sketcher.Constraint("Radius", 1, 2.5),
    Sketcher.Constraint("DistanceX", 0, 2, 0, 1, 35.0),
    Sketcher.Constraint("DistanceX", -1, 1, 1, 3, 59.5166),
    Sketcher.Constraint("DistanceY", 1, 3, -1, 1, 9.3198),
])
sketch3.setExpression("Constraints[6]", "Params.sketch3_radius")
sketch3.setExpression("Constraints[7]", "Params.sketch3_width")
pocket2 = body.newObject("PartDesign::Pocket", "Pocket001")
pocket2.Profile = sketch3
pocket2.Type = "UpToFirst"
doc.recompute()

linearpattern = body.newObject("PartDesign::LinearPattern", "LinearPattern")
linearpattern.Originals = [pocket2]
linearpattern.Direction = (doc.getObject("Y_Axis"), [""])
linearpattern.Mode = "offset"
linearpattern.setExpression("Offset", "Params.linearpattern_pitch")
linearpattern.Occurrences = 3
body.Tip = linearpattern

# Sketch on XY plane
sketch4 = body.newObject("Sketcher::SketchObject", "Sketch003")
sketch4.AttachmentSupport = (doc.getObject("XY_Plane"), [""])
sketch4.MapMode = "FlatFace"
sketch4.AttachmentOffset = App.Placement(Vector(0, 0, 3), App.Rotation())
sketch4.addGeometry([
    Part.Circle(Vector(16.5, 13.5, 0), Vector(0, 0, 1), 1.5),
    Part.Circle(Vector(16.5, -13.5, 0), Vector(0, 0, 1), 1.5),
    Part.Circle(Vector(121.5, 13.5, 0), Vector(0, 0, 1), 1.5),
    Part.Circle(Vector(121.5, -13.5, 0), Vector(0, 0, 1), 1.5),
], False)
sketch4.addConstraint([
    Sketcher.Constraint("Equal", 0, 1),
    Sketcher.Constraint("Equal", 1, 2),
    Sketcher.Constraint("Equal", 2, 3),
    Sketcher.Constraint("Symmetric", 0, 3, 1, 3, -1),
    Sketcher.Constraint("Symmetric", 2, 3, 3, 3, -1),
    Sketcher.Constraint("Horizontal", 0, 3, 2, 3),
    Sketcher.Constraint("Diameter", 0, 3.0),
    Sketcher.Constraint("DistanceY", 1, 3, 0, 3, 27.0),
    Sketcher.Constraint("DistanceX", 0, 3, 2, 3, 105.0),
    Sketcher.Constraint("DistanceX", -1, 1, 0, 3, 16.5),
])
sketch4.setExpression("Constraints[6]", "Params.sketch4_diameter")
doc.recompute()
hole = body.newObject("PartDesign::Hole", "Hole")
hole.Profile = sketch4
hole.ThreadType = "None"
hole.setExpression("Diameter", "Params.hole_diameter")
hole.DepthType = "ThroughAll"
hole.HoleCutType = "Countersink"
hole.setExpression("HoleCutDiameter", "Params.hole_csink_diameter")
hole.HoleCutCountersinkAngle = 90

doc.recompute()
